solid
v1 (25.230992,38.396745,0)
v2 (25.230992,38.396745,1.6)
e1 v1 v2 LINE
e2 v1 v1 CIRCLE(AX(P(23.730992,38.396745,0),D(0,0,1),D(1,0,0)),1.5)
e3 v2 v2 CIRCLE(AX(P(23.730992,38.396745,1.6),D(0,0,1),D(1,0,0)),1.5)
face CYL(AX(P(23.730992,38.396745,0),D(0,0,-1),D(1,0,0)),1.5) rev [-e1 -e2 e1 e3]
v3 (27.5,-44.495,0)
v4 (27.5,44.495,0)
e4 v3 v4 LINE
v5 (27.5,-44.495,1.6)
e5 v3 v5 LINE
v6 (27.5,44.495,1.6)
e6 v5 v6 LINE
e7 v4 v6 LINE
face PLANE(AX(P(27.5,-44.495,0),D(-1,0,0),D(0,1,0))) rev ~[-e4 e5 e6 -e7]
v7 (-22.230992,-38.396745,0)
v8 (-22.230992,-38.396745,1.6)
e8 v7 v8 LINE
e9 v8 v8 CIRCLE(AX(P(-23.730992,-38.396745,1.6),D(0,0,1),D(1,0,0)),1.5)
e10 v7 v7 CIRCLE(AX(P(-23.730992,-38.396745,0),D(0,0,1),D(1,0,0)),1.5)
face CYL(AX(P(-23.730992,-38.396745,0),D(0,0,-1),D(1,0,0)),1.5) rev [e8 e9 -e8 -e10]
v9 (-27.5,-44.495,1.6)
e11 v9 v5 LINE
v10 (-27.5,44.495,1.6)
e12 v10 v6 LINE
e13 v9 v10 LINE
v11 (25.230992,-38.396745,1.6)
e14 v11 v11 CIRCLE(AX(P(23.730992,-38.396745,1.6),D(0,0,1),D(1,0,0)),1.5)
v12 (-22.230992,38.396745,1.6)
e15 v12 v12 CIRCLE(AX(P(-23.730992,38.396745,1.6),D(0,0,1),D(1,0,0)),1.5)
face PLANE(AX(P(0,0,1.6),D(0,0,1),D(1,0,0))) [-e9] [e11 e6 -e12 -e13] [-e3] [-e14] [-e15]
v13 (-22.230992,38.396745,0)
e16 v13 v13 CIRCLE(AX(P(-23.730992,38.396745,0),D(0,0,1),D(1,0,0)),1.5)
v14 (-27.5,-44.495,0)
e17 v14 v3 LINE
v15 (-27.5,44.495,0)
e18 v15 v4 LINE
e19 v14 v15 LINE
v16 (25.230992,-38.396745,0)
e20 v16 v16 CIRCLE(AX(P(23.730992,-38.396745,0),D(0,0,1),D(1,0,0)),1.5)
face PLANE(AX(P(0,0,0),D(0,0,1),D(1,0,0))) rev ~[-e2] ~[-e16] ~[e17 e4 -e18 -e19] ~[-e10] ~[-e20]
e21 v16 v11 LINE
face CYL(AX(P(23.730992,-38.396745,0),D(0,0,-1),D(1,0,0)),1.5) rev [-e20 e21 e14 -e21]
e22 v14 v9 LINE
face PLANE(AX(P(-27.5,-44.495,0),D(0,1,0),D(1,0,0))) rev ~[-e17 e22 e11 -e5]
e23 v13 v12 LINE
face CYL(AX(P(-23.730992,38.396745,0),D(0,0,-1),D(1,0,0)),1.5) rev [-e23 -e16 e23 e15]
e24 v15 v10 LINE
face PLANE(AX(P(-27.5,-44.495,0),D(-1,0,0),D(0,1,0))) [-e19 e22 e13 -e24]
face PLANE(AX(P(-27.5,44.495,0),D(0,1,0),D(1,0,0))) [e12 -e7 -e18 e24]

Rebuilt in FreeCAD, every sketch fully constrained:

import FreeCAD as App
import Part
import Sketcher
from FreeCAD import Vector
Q = App.Units.Quantity

doc = App.newDocument("Part")
params = doc.addObject("Spreadsheet::Sheet", "Params")
for row, (alias, value) in enumerate([
    ("sketch1_diameter", "3 mm"),
    ("sketch1_width", "55 mm"),
    ("sketch1_height", "88.99 mm"),
    ("pad1_length", "1.6 mm"),
], start=1):
    params.set(f"A{row}", alias)
    params.set(f"B{row}", "=" + value)
    params.setAlias(f"B{row}", alias)

body = doc.addObject("PartDesign::Body", "Body")

# Sketch on XY plane
sketch1 = body.newObject("Sketcher::SketchObject", "Sketch")
sketch1.AttachmentSupport = (doc.getObject("XY_Plane"), [""])
sketch1.MapMode = "FlatFace"
sketch1.addGeometry([
    Part.LineSegment(Vector(-27.5, 44.495, 0), Vector(-27.5, -44.495, 0)),  # 0
    Part.LineSegment(Vector(-27.5, -44.495, 0), Vector(27.5, -44.495, 0)),  # 1
    Part.LineSegment(Vector(27.5, -44.495, 0), Vector(27.5, 44.495, 0)),  # 2
    Part.LineSegment(Vector(27.5, 44.495, 0), Vector(-27.5, 44.495, 0)),  # 3
    Part.Circle(Vector(-23.730992, -38.396745, 0), Vector(0, 0, 1), 1.5),  # 4
    Part.Circle(Vector(23.730992, -38.396745, 0), Vector(0, 0, 1), 1.5),  # 5
    Part.Circle(Vector(-23.730992, 38.396745, 0), Vector(0, 0, 1), 1.5),  # 6
    Part.Circle(Vector(23.730992, 38.396745, 0), Vector(0, 0, 1), 1.5),  # 7
], False)
sketch1.addConstraint([
    Sketcher.Constraint("Coincident", 0, 2, 1, 1),
    Sketcher.Constraint("Coincident", 1, 2, 2, 1),
    Sketcher.Constraint("Coincident", 2, 2, 3, 1),
    Sketcher.Constraint("Coincident", 3, 2, 0, 1),
    Sketcher.Constraint("Vertical", 0),
    Sketcher.Constraint("Horizontal", 1),
    Sketcher.Constraint("Vertical", 2),
    Sketcher.Constraint("Horizontal", 3),
    Sketcher.Constraint("Equal", 4, 5),
    Sketcher.Constraint("Equal", 5, 6),
    Sketcher.Constraint("Equal", 6, 7),
    Sketcher.Constraint("Symmetric", 5, 3, 6, 3, -1, 1),
    Sketcher.Constraint("Symmetric", 4, 3, 7, 3, -1, 1),
    Sketcher.Constraint("Symmetric", 0, 2, 2, 2, -1, 1),
    Sketcher.Constraint("Symmetric", 4, 3, 5, 3, -2),
    Sketcher.Constraint("Diameter", 4, Q("3 mm")),
    Sketcher.Constraint("DistanceX", 1, 1, 1, 2, Q("55 mm")),
    Sketcher.Constraint("DistanceY", 0, 2, 0, 1, Q("88.99 mm")),
    Sketcher.Constraint("DistanceY", 4, 3, 6, 3, Q("76.79349 mm")),
    Sketcher.Constraint("DistanceX", 4, 3, -1, 1, Q("23.730992 mm")),
])
sketch1.setExpression("Constraints[15]", "Params.sketch1_diameter")
sketch1.setExpression("Constraints[16]", "Params.sketch1_width")
sketch1.setExpression("Constraints[17]", "Params.sketch1_height")
pad1 = body.newObject("PartDesign::Pad", "Pad")
pad1.Profile = sketch1
pad1.setExpression("Length", "Params.pad1_length")

doc.recompute()
